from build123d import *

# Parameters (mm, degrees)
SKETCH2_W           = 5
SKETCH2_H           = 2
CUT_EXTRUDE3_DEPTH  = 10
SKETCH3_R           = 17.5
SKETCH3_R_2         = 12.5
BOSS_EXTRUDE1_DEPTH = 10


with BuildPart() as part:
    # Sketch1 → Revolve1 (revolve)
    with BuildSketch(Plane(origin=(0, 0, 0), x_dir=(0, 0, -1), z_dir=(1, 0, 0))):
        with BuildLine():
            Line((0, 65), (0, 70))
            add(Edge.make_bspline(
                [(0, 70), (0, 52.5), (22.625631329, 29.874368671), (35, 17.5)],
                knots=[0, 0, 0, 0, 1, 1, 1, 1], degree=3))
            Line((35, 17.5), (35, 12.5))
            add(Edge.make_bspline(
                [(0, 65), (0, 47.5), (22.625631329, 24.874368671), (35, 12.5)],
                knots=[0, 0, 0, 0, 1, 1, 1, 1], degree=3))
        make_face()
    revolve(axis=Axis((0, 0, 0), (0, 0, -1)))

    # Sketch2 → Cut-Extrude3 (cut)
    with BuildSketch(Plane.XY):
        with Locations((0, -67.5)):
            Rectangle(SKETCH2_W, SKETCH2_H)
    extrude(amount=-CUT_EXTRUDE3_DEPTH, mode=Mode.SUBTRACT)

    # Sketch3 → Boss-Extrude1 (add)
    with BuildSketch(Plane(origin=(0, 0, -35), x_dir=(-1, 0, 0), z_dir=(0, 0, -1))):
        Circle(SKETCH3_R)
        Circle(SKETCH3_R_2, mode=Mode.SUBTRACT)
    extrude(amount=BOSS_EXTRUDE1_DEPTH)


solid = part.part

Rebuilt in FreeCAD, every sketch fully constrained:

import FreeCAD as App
import Part
import Sketcher

V = App.Vector


def add_polygon(sketch, points):
    """Adds a closed chain of lines whose ends are joined by coincident constraints."""
    first, n = sketch.GeometryCount, len(points)
    for a, b in zip(points, points[1:] + points[:1]):
        sketch.addGeometry(Part.LineSegment(App.Vector(*a, 0), App.Vector(*b, 0)), False)
    for i in range(n):
        sketch.addConstraint(Sketcher.Constraint("Coincident", first + i, 2, first + (i + 1) % n, 1))

doc = App.newDocument("Part")
body = doc.addObject("PartDesign::Body", "Body")

# Sketch on YZ plane
sketch1 = body.newObject("Sketcher::SketchObject", "Sketch")
sketch1.AttachmentSupport = (doc.getObject("YZ_Plane"), [""])
sketch1.MapMode = "FlatFace"
sketch1.addGeometry(Part.LineSegment(V(70, 0, 0), V(65, 0, 0)), False)
sketch1.addGeometry(Part.BSplineCurve([V(65, 0, 0), V(47.5, 0, 0), V(24.874369, -22.625631, 0), V(12.5, -35, 0)], [4, 4], [0, 1], False, 3, [1, 1, 1, 1], False), False)
sketch1.addGeometry(Part.LineSegment(V(12.5, -35, 0), V(17.5, -35, 0)), False)
sketch1.addGeometry(Part.BSplineCurve([V(70, 0, 0), V(52.5, 0, 0), V(29.874369, -22.625631, 0), V(17.5, -35, 0)], [4, 4], [0, 1], False, 3, [1, 1, 1, 1], False), False)
sketch1.addConstraint(Sketcher.Constraint("Block", 1))
sketch1.addConstraint(Sketcher.Constraint("Block", 3))
sketch1.addConstraint(Sketcher.Constraint("Coincident", 0, 2, 1, 1))
sketch1.addConstraint(Sketcher.Constraint("Coincident", 1, 2, 2, 1))
sketch1.addConstraint(Sketcher.Constraint("Coincident", 2, 2, 3, 2))
sketch1.addConstraint(Sketcher.Constraint("Coincident", 3, 1, 0, 1))
revolution = body.newObject("PartDesign::Revolution", "Revolution")
revolution.Profile = sketch1
revolution.ReferenceAxis = (sketch1, ["V_Axis"])
revolution.Angle = 360

# Sketch on XY plane
sketch2 = body.newObject("Sketcher::SketchObject", "Sketch001")
sketch2.AttachmentSupport = (doc.getObject("XY_Plane"), [""])
sketch2.MapMode = "FlatFace"
add_polygon(sketch2, [(-2.5, -66.5), (-2.5, -68.5), (2.5, -68.5), (2.5, -66.5)])  # lines 0-3
sketch2.addConstraint(Sketcher.Constraint("Vertical", 0))
sketch2.addConstraint(Sketcher.Constraint("Horizontal", 1))
sketch2.addConstraint(Sketcher.Constraint("Vertical", 2))
sketch2.addConstraint(Sketcher.Constraint("Horizontal", 3))
sketch2.addConstraint(Sketcher.Constraint("DistanceX", 1, 1, 1, 2, 5.0))
sketch2.addConstraint(Sketcher.Constraint("DistanceY", 0, 2, 0, 1, 2.0))
sketch2.addConstraint(Sketcher.Constraint("DistanceX", 0, 2, -1, 1, 2.5))
sketch2.addConstraint(Sketcher.Constraint("DistanceY", 0, 2, -1, 1, 68.5))
pocket1 = body.newObject("PartDesign::Pocket", "Pocket")
pocket1.Profile = sketch2
pocket1.Length = 10

# Sketch on XY plane
sketch3 = body.newObject("Sketcher::SketchObject", "Sketch002")
sketch3.AttachmentSupport = (doc.getObject("XY_Plane"), [""])
sketch3.MapMode = "FlatFace"
sketch3.AttachmentOffset = App.Placement(V(0, 0, -35), App.Rotation())
sketch3.addGeometry(Part.Circle(V(0, 0, 0), V(0, 0, 1), 18), False)
sketch3.addGeometry(Part.Circle(V(0, 0, 0), V(0, 0, 1), 12), False)
sketch3.addConstraint(Sketcher.Constraint("Coincident", 0, 3, -1, 1))
sketch3.addConstraint(Sketcher.Constraint("Coincident", 1, 3, -1, 1))
sketch3.addConstraint(Sketcher.Constraint("Diameter", 0, 35.0))
sketch3.addConstraint(Sketcher.Constraint("Diameter", 1, 25.0))
pad1 = body.newObject("PartDesign::Pad", "Pad")
pad1.Profile = sketch3
pad1.Length = 10
pad1.Reversed = True

doc.recompute()
